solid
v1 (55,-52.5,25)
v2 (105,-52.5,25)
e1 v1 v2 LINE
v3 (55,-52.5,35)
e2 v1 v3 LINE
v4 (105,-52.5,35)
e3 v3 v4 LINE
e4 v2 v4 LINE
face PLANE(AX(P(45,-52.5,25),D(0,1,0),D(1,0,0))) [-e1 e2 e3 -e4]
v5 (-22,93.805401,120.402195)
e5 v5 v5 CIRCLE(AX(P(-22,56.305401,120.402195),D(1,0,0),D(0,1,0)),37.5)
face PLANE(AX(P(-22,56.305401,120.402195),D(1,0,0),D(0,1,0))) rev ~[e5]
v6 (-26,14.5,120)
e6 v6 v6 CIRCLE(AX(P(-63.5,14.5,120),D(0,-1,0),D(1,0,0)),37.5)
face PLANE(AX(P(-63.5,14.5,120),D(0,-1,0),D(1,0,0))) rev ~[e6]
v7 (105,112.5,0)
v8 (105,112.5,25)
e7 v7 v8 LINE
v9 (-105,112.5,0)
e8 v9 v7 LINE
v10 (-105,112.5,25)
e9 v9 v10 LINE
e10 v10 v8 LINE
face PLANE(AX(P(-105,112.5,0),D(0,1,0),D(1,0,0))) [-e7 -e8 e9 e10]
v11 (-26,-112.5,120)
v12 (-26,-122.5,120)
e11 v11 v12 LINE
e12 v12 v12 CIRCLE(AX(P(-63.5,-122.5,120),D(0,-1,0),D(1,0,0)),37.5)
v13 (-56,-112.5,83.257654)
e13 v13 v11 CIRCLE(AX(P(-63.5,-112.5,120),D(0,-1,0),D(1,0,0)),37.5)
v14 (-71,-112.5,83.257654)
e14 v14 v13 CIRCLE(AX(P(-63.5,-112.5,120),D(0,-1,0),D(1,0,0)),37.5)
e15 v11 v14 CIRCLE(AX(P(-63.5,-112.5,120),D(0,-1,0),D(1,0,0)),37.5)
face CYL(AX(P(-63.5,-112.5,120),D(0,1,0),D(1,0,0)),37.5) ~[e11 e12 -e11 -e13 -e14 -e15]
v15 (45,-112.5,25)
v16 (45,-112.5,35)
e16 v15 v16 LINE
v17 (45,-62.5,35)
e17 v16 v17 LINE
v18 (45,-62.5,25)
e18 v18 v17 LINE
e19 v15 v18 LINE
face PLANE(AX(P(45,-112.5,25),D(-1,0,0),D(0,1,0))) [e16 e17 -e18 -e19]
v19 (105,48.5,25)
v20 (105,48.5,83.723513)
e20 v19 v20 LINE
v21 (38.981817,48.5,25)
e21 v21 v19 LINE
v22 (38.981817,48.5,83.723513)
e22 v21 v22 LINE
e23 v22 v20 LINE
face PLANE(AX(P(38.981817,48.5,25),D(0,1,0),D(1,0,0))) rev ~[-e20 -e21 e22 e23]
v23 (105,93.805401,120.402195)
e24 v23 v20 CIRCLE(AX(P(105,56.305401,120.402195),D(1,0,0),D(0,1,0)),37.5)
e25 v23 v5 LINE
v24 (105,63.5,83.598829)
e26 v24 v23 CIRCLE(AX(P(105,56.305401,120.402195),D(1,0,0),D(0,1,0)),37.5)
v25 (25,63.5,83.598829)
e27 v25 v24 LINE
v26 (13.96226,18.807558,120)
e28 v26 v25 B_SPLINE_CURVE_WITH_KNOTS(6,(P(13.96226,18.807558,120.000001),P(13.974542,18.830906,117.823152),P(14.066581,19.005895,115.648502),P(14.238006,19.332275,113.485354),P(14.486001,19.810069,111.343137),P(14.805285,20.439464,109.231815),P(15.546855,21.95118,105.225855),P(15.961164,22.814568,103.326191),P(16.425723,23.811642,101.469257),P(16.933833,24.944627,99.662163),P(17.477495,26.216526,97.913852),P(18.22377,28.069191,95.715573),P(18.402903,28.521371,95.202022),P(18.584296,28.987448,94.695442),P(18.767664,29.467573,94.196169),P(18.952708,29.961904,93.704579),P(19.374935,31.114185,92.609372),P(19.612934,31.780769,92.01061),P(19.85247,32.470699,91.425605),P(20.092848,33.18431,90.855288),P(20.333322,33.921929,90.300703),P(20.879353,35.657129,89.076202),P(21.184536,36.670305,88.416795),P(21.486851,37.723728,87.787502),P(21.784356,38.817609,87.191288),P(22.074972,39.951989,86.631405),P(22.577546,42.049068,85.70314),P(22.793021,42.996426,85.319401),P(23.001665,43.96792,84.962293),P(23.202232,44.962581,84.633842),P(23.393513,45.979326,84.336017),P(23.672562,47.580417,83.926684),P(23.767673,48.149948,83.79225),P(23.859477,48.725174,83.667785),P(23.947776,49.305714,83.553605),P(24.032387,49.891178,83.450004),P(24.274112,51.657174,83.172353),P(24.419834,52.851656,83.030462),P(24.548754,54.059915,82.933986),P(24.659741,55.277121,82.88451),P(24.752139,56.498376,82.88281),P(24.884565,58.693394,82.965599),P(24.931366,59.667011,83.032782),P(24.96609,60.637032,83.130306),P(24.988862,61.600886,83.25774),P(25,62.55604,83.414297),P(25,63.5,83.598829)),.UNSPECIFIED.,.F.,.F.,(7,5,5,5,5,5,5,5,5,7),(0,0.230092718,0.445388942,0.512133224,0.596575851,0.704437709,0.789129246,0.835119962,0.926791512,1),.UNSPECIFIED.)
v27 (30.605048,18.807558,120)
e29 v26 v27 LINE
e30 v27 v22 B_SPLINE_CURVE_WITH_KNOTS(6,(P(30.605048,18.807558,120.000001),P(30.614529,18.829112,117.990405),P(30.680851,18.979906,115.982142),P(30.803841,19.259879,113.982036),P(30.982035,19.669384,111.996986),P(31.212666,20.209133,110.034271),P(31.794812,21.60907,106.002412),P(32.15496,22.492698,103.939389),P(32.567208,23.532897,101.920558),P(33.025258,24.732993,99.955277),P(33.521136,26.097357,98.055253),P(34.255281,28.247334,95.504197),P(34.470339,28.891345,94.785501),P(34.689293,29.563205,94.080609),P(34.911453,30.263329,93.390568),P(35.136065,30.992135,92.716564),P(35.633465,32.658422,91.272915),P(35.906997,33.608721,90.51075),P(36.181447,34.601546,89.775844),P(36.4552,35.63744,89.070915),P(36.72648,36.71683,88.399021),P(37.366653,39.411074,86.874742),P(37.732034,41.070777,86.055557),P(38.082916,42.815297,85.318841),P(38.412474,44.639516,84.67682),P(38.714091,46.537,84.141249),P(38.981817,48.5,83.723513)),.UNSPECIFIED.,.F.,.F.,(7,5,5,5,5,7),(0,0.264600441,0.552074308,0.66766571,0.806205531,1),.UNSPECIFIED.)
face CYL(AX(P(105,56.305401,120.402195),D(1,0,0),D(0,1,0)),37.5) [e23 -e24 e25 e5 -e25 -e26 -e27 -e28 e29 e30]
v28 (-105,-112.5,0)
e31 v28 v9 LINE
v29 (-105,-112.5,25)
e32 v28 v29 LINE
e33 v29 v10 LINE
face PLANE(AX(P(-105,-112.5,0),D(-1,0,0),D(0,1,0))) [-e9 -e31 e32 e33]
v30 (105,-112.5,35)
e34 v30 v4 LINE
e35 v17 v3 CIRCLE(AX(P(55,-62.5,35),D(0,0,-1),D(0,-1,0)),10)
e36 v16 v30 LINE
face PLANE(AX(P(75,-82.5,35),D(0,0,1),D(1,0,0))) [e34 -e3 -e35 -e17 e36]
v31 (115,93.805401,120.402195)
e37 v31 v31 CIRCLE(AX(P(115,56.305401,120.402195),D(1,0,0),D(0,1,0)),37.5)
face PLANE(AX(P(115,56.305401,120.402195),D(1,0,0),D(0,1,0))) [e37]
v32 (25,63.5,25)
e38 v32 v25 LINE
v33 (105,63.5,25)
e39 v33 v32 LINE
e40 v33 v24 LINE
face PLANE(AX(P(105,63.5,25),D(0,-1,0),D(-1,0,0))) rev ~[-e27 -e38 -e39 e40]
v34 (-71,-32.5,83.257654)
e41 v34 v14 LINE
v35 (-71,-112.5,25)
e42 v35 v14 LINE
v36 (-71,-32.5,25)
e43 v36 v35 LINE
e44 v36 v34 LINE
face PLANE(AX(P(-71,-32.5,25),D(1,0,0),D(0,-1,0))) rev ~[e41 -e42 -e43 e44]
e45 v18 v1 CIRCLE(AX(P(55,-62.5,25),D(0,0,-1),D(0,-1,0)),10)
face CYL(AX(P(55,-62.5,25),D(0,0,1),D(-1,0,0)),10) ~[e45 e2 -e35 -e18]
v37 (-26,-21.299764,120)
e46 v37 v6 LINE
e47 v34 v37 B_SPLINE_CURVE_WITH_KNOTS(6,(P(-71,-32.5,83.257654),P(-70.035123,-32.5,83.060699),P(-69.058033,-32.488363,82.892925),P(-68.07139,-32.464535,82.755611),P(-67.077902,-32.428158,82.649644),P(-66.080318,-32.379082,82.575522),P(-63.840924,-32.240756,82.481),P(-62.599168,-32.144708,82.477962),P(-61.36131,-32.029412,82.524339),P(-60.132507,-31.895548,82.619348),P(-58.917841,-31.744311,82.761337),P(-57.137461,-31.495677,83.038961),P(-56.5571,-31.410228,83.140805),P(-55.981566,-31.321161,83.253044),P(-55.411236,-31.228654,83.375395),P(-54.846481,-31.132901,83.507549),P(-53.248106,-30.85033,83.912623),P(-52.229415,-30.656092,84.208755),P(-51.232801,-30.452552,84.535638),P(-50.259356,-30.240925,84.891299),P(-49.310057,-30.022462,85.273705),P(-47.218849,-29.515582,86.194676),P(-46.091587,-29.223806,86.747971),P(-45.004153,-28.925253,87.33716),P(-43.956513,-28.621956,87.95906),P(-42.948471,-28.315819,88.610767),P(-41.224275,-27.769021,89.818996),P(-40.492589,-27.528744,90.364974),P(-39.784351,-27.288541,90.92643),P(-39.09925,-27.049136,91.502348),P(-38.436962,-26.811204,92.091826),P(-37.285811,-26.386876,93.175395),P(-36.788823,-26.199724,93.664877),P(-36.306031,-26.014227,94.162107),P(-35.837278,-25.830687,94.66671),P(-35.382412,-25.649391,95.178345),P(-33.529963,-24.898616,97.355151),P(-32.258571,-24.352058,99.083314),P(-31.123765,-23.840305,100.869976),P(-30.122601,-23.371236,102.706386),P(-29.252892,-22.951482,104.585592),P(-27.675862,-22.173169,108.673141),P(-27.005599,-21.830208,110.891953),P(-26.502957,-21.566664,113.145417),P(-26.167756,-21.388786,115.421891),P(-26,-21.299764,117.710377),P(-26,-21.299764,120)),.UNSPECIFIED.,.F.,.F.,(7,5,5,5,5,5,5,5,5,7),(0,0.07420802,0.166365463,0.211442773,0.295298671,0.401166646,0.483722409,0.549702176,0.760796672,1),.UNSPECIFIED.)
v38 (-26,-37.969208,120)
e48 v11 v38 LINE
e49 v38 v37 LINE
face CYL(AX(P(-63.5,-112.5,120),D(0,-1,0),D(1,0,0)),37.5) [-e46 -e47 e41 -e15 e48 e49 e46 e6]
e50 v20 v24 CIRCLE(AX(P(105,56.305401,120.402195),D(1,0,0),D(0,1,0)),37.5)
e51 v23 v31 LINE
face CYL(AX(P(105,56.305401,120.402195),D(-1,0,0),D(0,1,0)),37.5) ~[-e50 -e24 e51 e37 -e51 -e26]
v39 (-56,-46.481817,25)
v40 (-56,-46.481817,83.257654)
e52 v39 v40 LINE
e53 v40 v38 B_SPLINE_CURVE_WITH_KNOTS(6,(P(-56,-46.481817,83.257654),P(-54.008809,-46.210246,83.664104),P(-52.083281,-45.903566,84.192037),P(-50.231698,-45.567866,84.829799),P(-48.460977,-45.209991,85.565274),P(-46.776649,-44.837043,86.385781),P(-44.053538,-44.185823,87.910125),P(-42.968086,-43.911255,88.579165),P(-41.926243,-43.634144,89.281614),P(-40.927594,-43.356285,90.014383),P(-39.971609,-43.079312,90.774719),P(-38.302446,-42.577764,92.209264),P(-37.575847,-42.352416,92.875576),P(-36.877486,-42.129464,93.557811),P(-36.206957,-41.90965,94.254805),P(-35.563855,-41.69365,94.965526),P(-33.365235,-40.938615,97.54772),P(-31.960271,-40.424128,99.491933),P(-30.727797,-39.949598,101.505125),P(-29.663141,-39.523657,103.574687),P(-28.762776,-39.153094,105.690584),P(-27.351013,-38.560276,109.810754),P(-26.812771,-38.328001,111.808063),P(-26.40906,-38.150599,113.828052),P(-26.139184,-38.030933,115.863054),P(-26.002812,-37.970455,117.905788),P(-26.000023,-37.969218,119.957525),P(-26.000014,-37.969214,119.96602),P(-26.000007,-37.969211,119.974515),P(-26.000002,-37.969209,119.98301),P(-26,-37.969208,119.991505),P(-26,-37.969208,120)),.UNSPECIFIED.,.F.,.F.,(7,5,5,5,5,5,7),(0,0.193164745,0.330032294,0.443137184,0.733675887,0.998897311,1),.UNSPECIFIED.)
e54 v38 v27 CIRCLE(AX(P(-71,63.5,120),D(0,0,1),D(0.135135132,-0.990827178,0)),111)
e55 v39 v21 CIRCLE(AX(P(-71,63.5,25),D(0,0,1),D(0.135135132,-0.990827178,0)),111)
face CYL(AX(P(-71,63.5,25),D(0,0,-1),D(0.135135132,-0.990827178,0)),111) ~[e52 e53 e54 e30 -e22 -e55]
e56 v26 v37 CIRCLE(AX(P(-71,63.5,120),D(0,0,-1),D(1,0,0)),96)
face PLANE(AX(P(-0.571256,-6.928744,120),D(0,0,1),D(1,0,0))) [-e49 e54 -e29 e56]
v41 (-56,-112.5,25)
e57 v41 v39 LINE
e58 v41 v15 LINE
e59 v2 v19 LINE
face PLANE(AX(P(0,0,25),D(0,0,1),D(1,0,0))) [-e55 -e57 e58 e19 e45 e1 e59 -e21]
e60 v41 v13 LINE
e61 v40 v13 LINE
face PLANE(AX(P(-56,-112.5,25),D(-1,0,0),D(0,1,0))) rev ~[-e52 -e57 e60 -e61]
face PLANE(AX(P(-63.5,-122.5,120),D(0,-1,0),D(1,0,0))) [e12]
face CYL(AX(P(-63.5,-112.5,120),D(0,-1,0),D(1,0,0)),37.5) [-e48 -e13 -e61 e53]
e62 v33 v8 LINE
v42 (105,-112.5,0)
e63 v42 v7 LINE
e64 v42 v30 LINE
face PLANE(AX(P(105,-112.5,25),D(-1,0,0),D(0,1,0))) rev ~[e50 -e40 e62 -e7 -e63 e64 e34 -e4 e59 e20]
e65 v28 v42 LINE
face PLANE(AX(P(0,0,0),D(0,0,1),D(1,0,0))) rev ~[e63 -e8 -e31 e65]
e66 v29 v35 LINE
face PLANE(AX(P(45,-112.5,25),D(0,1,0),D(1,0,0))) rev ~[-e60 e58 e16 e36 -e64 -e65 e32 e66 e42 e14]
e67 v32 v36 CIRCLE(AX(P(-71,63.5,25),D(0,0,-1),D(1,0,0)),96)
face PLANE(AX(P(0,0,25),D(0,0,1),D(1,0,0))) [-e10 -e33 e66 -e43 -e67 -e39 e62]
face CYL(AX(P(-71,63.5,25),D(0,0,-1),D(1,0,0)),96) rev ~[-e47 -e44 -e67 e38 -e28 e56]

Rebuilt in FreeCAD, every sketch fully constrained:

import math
import FreeCAD as App
import Part
import Sketcher

V = App.Vector


def edges_at(feature, points):
    """Names of the edges that pass closest to the given points."""
    edges = feature.Shape.Edges
    near = lambda p: min(range(len(edges)), key=lambda i: edges[i].distToShape(Part.Vertex(*p))[0])
    return sorted({f"Edge{near(p) + 1}" for p in points})

doc = App.newDocument("Part")
body = doc.addObject("PartDesign::Body", "Body")

# Sketch on XY plane
sketch1 = body.newObject("Sketcher::SketchObject", "Sketch")
sketch1.AttachmentSupport = (doc.getObject("XY_Plane"), [""])
sketch1.MapMode = "FlatFace"
sketch1.addGeometry([
    Part.LineSegment(V(-105, 112, 0), V(-105, -112, 0)),
    Part.LineSegment(V(-105, -112, 0), V(105, -112, 0)),
    Part.LineSegment(V(105, -112, 0), V(105, 112, 0)),
    Part.LineSegment(V(105, 112, 0), V(-105, 112, 0)),
], False)
sketch1.addConstraint([
    Sketcher.Constraint("Coincident", 0, 2, 1, 1),
    Sketcher.Constraint("Coincident", 1, 2, 2, 1),
    Sketcher.Constraint("Coincident", 2, 2, 3, 1),
    Sketcher.Constraint("Coincident", 3, 2, 0, 1),
    Sketcher.Constraint("Vertical", 0),
    Sketcher.Constraint("Horizontal", 1),
    Sketcher.Constraint("Vertical", 2),
    Sketcher.Constraint("Horizontal", 3),
    Sketcher.Constraint("Symmetric", 0, 2, 2, 2, -1, 1),
    Sketcher.Constraint("DistanceX", 1, 1, 1, 2, 210.0),
    Sketcher.Constraint("DistanceY", 0, 2, 0, 1, 225.0),
])
pad1 = body.newObject("PartDesign::Pad", "Pad")
pad1.Profile = sketch1
pad1.Length = 25

# Sketch on XY plane
sketch2 = body.newObject("Sketcher::SketchObject", "Sketch001")
sketch2.AttachmentSupport = (doc.getObject("XY_Plane"), [""])
sketch2.MapMode = "FlatFace"
sketch2.AttachmentOffset = App.Placement(V(0, 0, 25), App.Rotation())
sketch2.addGeometry([
    Part.LineSegment(V(-71, -32, 0), V(-71, -112, 0)),  # 0
    Part.LineSegment(V(-71, -112, 0), V(-56, -112, 0)),  # 1
    Part.LineSegment(V(-56, -112, 0), V(-56, -46, 0)),  # 2
    Part.ArcOfCircle(Part.Circle(V(-71, 63, 0), V(0, 0, 1), 111), math.radians(-82), math.radians(-8)),  # 3
    Part.LineSegment(V(39, 48, 0), V(105, 48, 0)),  # 4
    Part.LineSegment(V(105, 48, 0), V(105, 64, 0)),  # 5
    Part.LineSegment(V(105, 64, 0), V(25, 64, 0)),  # 6
    Part.ArcOfCircle(Part.Circle(V(-71, 63, 0), V(0, 0, 1), 96), math.radians(-90), math.radians(0)),  # 7
], False)
sketch2.addConstraint([
    Sketcher.Constraint("Coincident", 0, 2, 1, 1),
    Sketcher.Constraint("Coincident", 1, 2, 2, 1),
    Sketcher.Constraint("Coincident", 2, 2, 3, 1),
    Sketcher.Constraint("Coincident", 3, 2, 4, 1),
    Sketcher.Constraint("Coincident", 4, 2, 5, 1),
    Sketcher.Constraint("Coincident", 5, 2, 6, 1),
    Sketcher.Constraint("Coincident", 6, 2, 7, 2),
    Sketcher.Constraint("Coincident", 7, 1, 0, 1),
    Sketcher.Constraint("Vertical", 0),
    Sketcher.Constraint("Horizontal", 1),
    Sketcher.Constraint("Vertical", 2),
    Sketcher.Constraint("Horizontal", 4),
    Sketcher.Constraint("Vertical", 5),
    Sketcher.Constraint("Horizontal", 6),
    Sketcher.Constraint("Coincident", 7, 3, 3, 3),
    Sketcher.Constraint("Horizontal", 7, 3, 5, 2),
    Sketcher.Constraint("Vertical", 7, 3, 0, 2),
    Sketcher.Constraint("Equal", 6, 0),
    Sketcher.Constraint("Equal", 4, 2),
    Sketcher.Constraint("Radius", 3, 111.0),
    Sketcher.Constraint("Radius", 7, 96.0),
    Sketcher.Constraint("DistanceX", 1, 1, 1, 2, 15.0),
    Sketcher.Constraint("DistanceX", 6, 2, 6, 1, 80.0),
    Sketcher.Constraint("DistanceX", 3, 3, -1, 1, 71.0),
    Sketcher.Constraint("DistanceY", -1, 1, 3, 3, 63.5),
])
pad2 = body.newObject("PartDesign::Pad", "Pad001")
pad2.Profile = sketch2
pad2.Length = 95

# Sketch on XZ plane
sketch3 = body.newObject("Sketcher::SketchObject", "Sketch002")
sketch3.AttachmentSupport = (doc.getObject("XZ_Plane"), [""])
sketch3.MapMode = "FlatFace"
sketch3.AttachmentOffset = App.Placement(V(0, 0, 112.5), App.Rotation())
sketch3.addGeometry(Part.Circle(V(-64, 120, 0), V(0, 0, 1), 38), False)
sketch3.addConstraint([
    Sketcher.Constraint("Diameter", 0, 75.0),
    Sketcher.Constraint("DistanceY", -1, 1, 0, 3, 120.0),
    Sketcher.Constraint("DistanceX", 0, 3, -1, 1, 63.5),
])
pad3 = body.newObject("PartDesign::Pad", "Pad002")
pad3.Profile = sketch3
pad3.Type = "TwoLengths"
pad3.Length = 10
pad3.Length2 = 127

# Sketch on YZ plane
sketch4 = body.newObject("Sketcher::SketchObject", "Sketch003")
sketch4.AttachmentSupport = (doc.getObject("YZ_Plane"), [""])
sketch4.MapMode = "FlatFace"
sketch4.AttachmentOffset = App.Placement(V(0, 0, 105), App.Rotation())
sketch4.addGeometry(Part.Circle(V(56, 120, 0), V(0, 0, 1), 38), False)
sketch4.addConstraint([
    Sketcher.Constraint("Diameter", 0, 75.0),
    Sketcher.Constraint("DistanceX", -1, 1, 0, 3, 56.305401),
    Sketcher.Constraint("DistanceY", -1, 1, 0, 3, 120.402195),
])
pad4 = body.newObject("PartDesign::Pad", "Pad003")
pad4.Profile = sketch4
pad4.Type = "TwoLengths"
pad4.Length = 10
pad4.Length2 = 127

# Sketch on XY plane
sketch5 = body.newObject("Sketcher::SketchObject", "Sketch004")
sketch5.AttachmentSupport = (doc.getObject("XY_Plane"), [""])
sketch5.MapMode = "FlatFace"
sketch5.AttachmentOffset = App.Placement(V(0, 0, 25), App.Rotation())
sketch5.addGeometry([
    Part.LineSegment(V(45, -52, 0), V(45, -112, 0)),
    Part.LineSegment(V(45, -112, 0), V(105, -112, 0)),
    Part.LineSegment(V(105, -112, 0), V(105, -52, 0)),
    Part.LineSegment(V(105, -52, 0), V(45, -52, 0)),
], False)
sketch5.addConstraint([
    Sketcher.Constraint("Coincident", 0, 2, 1, 1),
    Sketcher.Constraint("Coincident", 1, 2, 2, 1),
    Sketcher.Constraint("Coincident", 2, 2, 3, 1),
    Sketcher.Constraint("Coincident", 3, 2, 0, 1),
    Sketcher.Constraint("Vertical", 0),
    Sketcher.Constraint("Horizontal", 1),
    Sketcher.Constraint("Vertical", 2),
    Sketcher.Constraint("Horizontal", 3),
    Sketcher.Constraint("Equal", 3, 0),
    Sketcher.Constraint("DistanceX", 1, 1, 1, 2, 60.0),
    Sketcher.Constraint("DistanceX", -1, 1, 0, 2, 45.0),
    Sketcher.Constraint("DistanceY", 0, 2, -1, 1, 112.5),
])
pad5 = body.newObject("PartDesign::Pad", "Pad004")
pad5.Profile = sketch5
pad5.Length = 10
doc.recompute()

fillet = body.newObject("PartDesign::Fillet", "Fillet")
fillet.Base = (pad5, edges_at(pad5, [(45, -52.5, 30)]))
fillet.Radius = 10

doc.recompute()
